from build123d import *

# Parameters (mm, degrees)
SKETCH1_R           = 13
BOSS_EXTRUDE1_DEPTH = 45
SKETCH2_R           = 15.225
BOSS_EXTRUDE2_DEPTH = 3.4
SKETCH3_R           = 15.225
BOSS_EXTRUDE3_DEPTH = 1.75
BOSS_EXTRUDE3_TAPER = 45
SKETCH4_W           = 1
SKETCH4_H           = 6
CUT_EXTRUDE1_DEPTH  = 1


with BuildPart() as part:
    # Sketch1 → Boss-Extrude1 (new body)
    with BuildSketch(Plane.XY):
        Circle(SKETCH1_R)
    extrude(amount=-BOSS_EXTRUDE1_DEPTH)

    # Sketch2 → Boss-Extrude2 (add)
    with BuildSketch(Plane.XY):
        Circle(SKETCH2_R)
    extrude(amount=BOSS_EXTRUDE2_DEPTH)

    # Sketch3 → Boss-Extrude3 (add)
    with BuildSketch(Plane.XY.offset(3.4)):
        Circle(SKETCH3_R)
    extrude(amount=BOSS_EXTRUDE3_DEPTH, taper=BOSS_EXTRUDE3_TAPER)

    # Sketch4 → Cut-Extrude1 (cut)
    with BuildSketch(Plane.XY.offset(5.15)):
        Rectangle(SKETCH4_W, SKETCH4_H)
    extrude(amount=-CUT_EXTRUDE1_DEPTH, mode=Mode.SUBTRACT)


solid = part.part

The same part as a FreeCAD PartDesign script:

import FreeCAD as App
import Part
import Sketcher
from FreeCAD import Vector
Q = App.Units.Quantity


def add_polygon(sketch, points):
    """Adds a closed chain of lines whose ends are joined by coincident constraints."""
    first, n = sketch.GeometryCount, len(points)
    for a, b in zip(points, points[1:] + points[:1]):
        sketch.addGeometry(Part.LineSegment(App.Vector(*a, 0), App.Vector(*b, 0)), False)
    for i in range(n):
        sketch.addConstraint(Sketcher.Constraint("Coincident", first + i, 2, first + (i + 1) % n, 1))

doc = App.newDocument("Part")
body = doc.addObject("PartDesign::Body", "Body")

# Sketch on XY plane
sketch1 = body.newObject("Sketcher::SketchObject", "Sketch")
sketch1.AttachmentSupport = (doc.getObject("XY_Plane"), [""])
sketch1.MapMode = "FlatFace"
sketch1.addGeometry(Part.Circle(Vector(0, 0, 0), Vector(0, 0, 1), 13), False)
sketch1.addConstraint([
    Sketcher.Constraint("Coincident", 0, 3, -1, 1),
    Sketcher.Constraint("Diameter", 0, Q("26 mm")),
])
pad1 = body.newObject("PartDesign::Pad", "Pad")
pad1.Profile = sketch1
pad1.Length = 45
pad1.Reversed = True

# Sketch on XY plane
sketch2 = body.newObject("Sketcher::SketchObject", "Sketch001")
sketch2.AttachmentSupport = (doc.getObject("XY_Plane"), [""])
sketch2.MapMode = "FlatFace"
sketch2.addGeometry(Part.Circle(Vector(0, 0, 0), Vector(0, 0, 1), 15), False)
sketch2.addConstraint([
    Sketcher.Constraint("Coincident", 0, 3, -1, 1),
    Sketcher.Constraint("Diameter", 0, Q("30.45 mm")),
])
pad2 = body.newObject("PartDesign::Pad", "Pad001")
pad2.Profile = sketch2
pad2.Length = 3.4

# Sketch on XY plane
sketch3 = body.newObject("Sketcher::SketchObject", "Sketch002")
sketch3.AttachmentSupport = (doc.getObject("XY_Plane"), [""])
sketch3.MapMode = "FlatFace"
sketch3.AttachmentOffset = App.Placement(Vector(0, 0, 3.4), App.Rotation())
sketch3.addGeometry(Part.Circle(Vector(0, 0, 0), Vector(0, 0, 1), 15), False)
sketch3.addConstraint([
    Sketcher.Constraint("Coincident", 0, 3, -1, 1),
    Sketcher.Constraint("Diameter", 0, Q("30.45 mm")),
])
pad3 = body.newObject("PartDesign::Pad", "Pad002")
pad3.Profile = sketch3
pad3.Length = 1.75
pad3.TaperAngle = -45

# Sketch on XY plane
sketch4 = body.newObject("Sketcher::SketchObject", "Sketch003")
sketch4.AttachmentSupport = (doc.getObject("XY_Plane"), [""])
sketch4.MapMode = "FlatFace"
sketch4.AttachmentOffset = App.Placement(Vector(0, 0, 5.15), App.Rotation())
add_polygon(sketch4, [(-0.5, 3), (-0.5, -3), (0.5, -3), (0.5, 3)])  # lines 0-3
sketch4.addConstraint([
    Sketcher.Constraint("Vertical", 0),
    Sketcher.Constraint("Horizontal", 1),
    Sketcher.Constraint("Vertical", 2),
    Sketcher.Constraint("Horizontal", 3),
    Sketcher.Constraint("Symmetric", 0, 2, 2, 2, -1, 1),
    Sketcher.Constraint("DistanceX", 1, 1, 1, 2, Q("1 mm")),
    Sketcher.Constraint("DistanceY", 0, 2, 0, 1, Q("6 mm")),
])
pocket1 = body.newObject("PartDesign::Pocket", "Pocket")
pocket1.Profile = sketch4
pocket1.Length = 1

doc.recompute()
